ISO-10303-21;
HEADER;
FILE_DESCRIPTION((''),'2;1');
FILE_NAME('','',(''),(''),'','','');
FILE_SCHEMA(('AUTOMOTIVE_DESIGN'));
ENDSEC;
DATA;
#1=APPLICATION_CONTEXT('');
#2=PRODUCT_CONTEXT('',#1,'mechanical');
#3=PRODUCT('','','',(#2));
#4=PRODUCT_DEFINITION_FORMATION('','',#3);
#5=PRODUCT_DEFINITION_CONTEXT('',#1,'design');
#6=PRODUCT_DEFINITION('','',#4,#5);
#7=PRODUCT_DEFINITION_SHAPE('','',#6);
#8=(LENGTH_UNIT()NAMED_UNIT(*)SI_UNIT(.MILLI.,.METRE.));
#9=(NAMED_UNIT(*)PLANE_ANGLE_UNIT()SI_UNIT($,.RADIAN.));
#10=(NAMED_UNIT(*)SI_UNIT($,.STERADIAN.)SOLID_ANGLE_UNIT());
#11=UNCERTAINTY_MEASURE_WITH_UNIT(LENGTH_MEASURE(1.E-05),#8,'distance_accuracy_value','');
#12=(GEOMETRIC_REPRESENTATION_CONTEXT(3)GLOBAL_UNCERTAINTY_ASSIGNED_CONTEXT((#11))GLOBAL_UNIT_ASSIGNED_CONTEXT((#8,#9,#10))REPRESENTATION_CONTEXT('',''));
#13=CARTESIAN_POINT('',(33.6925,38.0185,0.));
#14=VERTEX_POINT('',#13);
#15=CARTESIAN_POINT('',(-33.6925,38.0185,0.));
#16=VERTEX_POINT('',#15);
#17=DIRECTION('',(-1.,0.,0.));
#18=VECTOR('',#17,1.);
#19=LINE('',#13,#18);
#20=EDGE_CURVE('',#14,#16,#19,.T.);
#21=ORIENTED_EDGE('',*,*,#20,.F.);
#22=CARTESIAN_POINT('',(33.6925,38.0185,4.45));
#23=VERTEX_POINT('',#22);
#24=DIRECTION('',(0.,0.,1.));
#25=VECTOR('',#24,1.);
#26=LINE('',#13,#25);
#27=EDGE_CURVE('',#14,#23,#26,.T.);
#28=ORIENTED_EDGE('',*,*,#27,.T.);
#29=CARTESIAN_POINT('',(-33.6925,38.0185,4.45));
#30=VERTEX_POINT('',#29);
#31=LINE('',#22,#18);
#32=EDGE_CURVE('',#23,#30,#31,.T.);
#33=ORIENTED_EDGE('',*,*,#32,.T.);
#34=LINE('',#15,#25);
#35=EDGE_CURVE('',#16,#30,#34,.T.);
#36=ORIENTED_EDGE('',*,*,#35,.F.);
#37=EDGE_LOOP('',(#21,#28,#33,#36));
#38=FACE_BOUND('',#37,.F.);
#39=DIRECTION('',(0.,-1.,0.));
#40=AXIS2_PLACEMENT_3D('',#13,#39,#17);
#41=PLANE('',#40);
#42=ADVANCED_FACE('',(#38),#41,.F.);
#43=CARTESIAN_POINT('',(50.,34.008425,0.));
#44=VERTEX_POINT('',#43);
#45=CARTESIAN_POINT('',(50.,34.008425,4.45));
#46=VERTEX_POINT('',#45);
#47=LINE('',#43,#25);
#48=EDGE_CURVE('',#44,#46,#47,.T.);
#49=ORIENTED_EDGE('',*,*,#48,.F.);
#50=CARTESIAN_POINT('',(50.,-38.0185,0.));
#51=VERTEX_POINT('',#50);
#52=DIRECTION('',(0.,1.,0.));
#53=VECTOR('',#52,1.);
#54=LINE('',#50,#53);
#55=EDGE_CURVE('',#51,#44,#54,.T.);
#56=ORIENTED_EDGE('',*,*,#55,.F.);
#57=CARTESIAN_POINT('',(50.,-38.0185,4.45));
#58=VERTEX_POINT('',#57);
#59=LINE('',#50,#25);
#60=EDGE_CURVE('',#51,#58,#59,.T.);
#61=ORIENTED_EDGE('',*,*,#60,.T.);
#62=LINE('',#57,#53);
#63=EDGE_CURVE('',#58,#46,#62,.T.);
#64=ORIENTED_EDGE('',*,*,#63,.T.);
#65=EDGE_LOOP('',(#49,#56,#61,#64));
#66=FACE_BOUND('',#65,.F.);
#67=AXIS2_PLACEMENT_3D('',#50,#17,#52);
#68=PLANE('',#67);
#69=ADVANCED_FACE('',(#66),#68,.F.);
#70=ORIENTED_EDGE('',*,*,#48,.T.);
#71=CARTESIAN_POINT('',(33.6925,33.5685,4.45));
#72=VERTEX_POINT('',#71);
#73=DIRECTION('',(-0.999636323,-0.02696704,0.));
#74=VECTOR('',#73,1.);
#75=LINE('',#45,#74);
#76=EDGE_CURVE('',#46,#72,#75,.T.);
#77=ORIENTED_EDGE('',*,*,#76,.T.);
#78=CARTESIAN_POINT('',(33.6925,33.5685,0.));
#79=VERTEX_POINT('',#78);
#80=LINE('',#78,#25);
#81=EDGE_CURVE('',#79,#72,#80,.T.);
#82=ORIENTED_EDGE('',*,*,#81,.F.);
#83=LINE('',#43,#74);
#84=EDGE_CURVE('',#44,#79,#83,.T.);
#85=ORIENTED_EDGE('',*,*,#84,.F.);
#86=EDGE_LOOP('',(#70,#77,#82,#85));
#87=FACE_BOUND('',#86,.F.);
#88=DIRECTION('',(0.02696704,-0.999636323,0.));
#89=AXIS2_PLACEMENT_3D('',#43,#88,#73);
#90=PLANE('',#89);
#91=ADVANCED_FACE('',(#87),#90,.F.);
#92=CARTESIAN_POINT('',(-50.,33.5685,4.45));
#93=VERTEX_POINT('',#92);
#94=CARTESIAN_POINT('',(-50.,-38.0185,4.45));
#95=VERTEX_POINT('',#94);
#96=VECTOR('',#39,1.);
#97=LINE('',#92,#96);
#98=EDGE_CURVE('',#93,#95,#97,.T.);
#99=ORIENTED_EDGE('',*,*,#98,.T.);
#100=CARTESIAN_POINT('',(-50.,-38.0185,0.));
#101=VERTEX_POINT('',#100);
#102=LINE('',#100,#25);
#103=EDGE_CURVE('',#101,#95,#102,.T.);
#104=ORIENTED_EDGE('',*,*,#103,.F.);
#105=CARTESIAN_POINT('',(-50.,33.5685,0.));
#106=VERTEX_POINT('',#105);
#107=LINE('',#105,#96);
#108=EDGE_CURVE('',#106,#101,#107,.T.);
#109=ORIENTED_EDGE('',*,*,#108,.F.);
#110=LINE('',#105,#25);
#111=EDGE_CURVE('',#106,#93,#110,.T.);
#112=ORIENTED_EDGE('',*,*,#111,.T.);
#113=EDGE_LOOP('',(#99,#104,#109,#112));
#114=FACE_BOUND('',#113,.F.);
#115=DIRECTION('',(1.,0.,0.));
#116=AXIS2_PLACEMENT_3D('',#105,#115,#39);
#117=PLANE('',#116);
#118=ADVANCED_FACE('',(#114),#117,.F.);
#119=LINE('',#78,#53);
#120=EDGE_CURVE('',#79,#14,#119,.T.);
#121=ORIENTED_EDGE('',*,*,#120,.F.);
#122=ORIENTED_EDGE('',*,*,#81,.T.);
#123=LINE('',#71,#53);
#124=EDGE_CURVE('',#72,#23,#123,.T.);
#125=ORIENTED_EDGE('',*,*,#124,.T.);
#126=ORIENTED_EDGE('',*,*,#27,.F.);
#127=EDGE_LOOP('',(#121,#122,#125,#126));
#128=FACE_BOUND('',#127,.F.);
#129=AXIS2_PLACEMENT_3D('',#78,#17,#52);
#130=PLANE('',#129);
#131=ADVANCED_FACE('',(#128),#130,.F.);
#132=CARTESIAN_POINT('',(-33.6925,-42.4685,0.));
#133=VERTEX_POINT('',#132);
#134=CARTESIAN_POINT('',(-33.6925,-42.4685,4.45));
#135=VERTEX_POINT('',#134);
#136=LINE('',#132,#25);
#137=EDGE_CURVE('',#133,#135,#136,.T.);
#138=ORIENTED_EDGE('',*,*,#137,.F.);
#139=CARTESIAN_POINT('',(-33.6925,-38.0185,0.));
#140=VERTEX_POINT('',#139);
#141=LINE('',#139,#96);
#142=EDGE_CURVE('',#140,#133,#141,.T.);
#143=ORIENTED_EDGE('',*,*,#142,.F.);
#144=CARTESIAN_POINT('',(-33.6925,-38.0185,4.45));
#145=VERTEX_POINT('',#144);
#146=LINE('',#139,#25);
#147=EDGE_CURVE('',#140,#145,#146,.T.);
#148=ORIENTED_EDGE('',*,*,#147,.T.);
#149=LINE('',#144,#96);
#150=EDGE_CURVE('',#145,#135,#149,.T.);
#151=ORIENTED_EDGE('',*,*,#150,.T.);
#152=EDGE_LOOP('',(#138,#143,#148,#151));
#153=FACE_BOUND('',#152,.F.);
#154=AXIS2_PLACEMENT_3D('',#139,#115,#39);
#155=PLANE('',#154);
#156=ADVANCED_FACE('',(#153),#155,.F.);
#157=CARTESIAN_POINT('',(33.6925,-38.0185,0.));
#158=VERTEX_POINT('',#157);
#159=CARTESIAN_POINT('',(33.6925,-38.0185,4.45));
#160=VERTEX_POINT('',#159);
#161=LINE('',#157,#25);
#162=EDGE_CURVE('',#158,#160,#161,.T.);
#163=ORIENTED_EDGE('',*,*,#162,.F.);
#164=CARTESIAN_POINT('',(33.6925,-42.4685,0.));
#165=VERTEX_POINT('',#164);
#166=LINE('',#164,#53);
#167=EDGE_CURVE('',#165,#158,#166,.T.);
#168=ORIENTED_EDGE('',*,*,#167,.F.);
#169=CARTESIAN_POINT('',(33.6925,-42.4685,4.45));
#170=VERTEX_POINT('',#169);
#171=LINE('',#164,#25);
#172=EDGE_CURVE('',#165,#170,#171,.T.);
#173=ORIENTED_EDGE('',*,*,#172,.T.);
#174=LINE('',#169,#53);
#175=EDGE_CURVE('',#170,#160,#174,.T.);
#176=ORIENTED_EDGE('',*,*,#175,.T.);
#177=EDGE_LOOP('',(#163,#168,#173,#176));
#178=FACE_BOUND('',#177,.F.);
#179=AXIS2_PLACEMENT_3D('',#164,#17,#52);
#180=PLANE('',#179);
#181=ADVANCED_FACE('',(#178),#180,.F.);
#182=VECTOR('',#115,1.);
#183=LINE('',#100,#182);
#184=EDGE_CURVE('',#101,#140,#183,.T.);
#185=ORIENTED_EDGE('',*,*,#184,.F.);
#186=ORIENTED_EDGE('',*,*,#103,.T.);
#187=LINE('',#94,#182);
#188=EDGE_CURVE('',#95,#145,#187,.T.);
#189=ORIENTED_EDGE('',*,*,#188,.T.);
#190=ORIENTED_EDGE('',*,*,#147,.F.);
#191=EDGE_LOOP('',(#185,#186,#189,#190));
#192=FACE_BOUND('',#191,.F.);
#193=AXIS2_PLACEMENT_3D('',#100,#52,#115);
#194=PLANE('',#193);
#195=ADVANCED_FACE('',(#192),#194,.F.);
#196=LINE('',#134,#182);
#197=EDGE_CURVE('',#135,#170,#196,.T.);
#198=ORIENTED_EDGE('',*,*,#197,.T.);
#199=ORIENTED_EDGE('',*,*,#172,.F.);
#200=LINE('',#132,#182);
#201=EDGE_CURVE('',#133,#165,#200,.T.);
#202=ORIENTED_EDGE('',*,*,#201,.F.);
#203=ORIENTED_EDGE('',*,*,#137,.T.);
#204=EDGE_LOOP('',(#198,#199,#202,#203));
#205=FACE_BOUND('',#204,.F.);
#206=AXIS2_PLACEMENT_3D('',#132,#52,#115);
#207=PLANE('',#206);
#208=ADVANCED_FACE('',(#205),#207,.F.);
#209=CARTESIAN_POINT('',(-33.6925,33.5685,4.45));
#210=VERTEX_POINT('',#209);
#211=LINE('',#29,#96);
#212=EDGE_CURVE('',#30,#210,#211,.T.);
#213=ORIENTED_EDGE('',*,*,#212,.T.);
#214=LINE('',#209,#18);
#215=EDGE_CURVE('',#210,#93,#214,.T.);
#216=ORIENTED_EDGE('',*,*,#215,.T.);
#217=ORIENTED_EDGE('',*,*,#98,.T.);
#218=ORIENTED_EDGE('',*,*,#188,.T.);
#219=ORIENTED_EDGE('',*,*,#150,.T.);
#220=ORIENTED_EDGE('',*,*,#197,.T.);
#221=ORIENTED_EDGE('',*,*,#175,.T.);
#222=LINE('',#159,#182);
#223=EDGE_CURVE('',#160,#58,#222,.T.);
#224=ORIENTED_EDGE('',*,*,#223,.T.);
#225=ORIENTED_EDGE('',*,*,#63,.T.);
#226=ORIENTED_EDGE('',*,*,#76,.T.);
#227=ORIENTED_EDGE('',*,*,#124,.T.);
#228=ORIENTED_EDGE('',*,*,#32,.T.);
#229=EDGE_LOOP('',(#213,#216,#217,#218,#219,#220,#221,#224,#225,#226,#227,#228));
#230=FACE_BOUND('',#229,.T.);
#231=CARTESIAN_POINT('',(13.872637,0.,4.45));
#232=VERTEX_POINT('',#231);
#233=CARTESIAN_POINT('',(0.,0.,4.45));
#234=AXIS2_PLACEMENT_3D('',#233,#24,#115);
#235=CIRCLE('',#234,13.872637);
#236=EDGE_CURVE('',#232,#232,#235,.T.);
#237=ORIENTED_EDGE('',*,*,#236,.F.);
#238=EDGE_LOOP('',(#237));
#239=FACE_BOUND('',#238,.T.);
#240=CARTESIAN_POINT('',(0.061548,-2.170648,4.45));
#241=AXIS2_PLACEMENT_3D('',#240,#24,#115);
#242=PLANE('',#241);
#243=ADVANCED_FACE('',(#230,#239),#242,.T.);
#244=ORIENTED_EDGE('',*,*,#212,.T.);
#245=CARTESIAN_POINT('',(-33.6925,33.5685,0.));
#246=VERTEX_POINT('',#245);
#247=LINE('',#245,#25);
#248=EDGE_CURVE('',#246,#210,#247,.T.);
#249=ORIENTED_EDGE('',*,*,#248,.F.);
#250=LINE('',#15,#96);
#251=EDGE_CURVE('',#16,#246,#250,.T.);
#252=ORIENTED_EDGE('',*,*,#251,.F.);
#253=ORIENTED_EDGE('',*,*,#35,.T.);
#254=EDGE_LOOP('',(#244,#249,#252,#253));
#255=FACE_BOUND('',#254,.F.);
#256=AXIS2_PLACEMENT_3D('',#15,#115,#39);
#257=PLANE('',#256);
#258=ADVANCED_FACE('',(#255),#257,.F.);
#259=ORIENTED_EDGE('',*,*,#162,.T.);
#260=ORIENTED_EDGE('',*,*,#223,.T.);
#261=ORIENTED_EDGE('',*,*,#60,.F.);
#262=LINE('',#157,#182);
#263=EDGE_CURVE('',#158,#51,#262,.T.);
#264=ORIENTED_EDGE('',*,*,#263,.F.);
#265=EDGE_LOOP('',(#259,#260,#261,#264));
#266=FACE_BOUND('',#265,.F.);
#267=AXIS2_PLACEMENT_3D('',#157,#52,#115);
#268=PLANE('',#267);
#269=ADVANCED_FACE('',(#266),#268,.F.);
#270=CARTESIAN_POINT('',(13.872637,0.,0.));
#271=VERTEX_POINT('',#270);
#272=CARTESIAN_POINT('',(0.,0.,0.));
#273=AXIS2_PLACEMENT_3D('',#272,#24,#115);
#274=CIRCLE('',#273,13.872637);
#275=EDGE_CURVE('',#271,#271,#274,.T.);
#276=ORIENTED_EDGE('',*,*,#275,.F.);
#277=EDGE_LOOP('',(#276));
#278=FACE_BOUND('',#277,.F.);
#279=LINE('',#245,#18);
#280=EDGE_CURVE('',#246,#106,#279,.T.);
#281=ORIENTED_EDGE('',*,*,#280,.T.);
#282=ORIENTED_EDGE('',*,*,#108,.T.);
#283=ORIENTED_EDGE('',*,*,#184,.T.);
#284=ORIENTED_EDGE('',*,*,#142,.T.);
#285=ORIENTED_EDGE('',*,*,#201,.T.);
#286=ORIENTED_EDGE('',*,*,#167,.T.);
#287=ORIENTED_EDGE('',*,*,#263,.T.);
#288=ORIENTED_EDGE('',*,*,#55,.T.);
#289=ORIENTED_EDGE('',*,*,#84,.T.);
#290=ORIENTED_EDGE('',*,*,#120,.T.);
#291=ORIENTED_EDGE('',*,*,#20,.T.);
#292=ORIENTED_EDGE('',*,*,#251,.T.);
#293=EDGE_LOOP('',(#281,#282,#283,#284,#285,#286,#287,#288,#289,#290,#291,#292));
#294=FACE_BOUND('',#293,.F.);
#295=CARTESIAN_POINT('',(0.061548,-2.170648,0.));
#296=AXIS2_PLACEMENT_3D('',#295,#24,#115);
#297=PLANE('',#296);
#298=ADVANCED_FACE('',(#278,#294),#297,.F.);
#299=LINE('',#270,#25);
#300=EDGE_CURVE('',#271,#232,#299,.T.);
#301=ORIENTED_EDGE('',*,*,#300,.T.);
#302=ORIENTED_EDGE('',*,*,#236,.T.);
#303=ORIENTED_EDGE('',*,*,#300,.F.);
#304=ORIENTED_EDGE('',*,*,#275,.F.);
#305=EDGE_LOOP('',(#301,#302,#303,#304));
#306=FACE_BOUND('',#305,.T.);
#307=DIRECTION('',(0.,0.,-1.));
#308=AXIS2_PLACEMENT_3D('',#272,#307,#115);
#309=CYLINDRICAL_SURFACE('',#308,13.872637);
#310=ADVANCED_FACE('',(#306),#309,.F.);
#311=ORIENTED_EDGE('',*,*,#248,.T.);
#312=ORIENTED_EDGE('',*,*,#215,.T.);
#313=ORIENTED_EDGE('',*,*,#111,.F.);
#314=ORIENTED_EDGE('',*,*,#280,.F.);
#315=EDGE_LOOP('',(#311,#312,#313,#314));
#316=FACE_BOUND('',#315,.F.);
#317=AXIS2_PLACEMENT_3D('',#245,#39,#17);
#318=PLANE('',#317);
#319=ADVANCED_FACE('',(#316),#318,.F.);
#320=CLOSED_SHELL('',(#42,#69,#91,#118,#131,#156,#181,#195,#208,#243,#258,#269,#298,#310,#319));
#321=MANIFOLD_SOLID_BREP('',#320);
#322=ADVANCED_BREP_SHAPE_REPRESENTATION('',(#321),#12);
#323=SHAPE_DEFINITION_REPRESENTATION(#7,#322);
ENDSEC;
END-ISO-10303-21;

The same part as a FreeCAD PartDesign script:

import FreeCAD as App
import Part
import Sketcher
from FreeCAD import Vector

doc = App.newDocument("Part")
body = doc.addObject("PartDesign::Body", "Body")

# Sketch on XY plane
sketch1 = body.newObject("Sketcher::SketchObject", "Sketch")
sketch1.AttachmentSupport = (doc.getObject("XY_Plane"), [""])
sketch1.MapMode = "FlatFace"
sketch1.addGeometry(Part.LineSegment(Vector(50, 34.008425, 0), Vector(33.6925, 33.5685, 0)), False)
sketch1.addGeometry(Part.LineSegment(Vector(33.6925, 33.5685, 0), Vector(33.6925, 38.0185, 0)), False)
sketch1.addGeometry(Part.LineSegment(Vector(33.6925, 38.0185, 0), Vector(-33.6925, 38.0185, 0)), False)
sketch1.addGeometry(Part.LineSegment(Vector(-33.6925, 38.0185, 0), Vector(-33.6925, 33.5685, 0)), False)
sketch1.addGeometry(Part.LineSegment(Vector(-33.6925, 33.5685, 0), Vector(-50, 33.5685, 0)), False)
sketch1.addGeometry(Part.LineSegment(Vector(-50, 33.5685, 0), Vector(-50, -38.0185, 0)), False)
sketch1.addGeometry(Part.LineSegment(Vector(-50, -38.0185, 0), Vector(-33.6925, -38.0185, 0)), False)
sketch1.addGeometry(Part.LineSegment(Vector(-33.6925, -38.0185, 0), Vector(-33.6925, -42.4685, 0)), False)
sketch1.addGeometry(Part.LineSegment(Vector(-33.6925, -42.4685, 0), Vector(33.6925, -42.4685, 0)), False)
sketch1.addGeometry(Part.LineSegment(Vector(33.6925, -42.4685, 0), Vector(33.6925, -38.0185, 0)), False)
sketch1.addGeometry(Part.LineSegment(Vector(33.6925, -38.0185, 0), Vector(50, -38.0185, 0)), False)
sketch1.addGeometry(Part.LineSegment(Vector(50, -38.0185, 0), Vector(50, 34.008425, 0)), False)
sketch1.addGeometry(Part.Circle(Vector(0, 0, 0), Vector(0, 0, 1), 13.872637), False)
sketch1.addConstraint(Sketcher.Constraint("Coincident", 0, 2, 1, 1))
sketch1.addConstraint(Sketcher.Constraint("Coincident", 1, 2, 2, 1))
sketch1.addConstraint(Sketcher.Constraint("Coincident", 2, 2, 3, 1))
sketch1.addConstraint(Sketcher.Constraint("Coincident", 3, 2, 4, 1))
sketch1.addConstraint(Sketcher.Constraint("Coincident", 4, 2, 5, 1))
sketch1.addConstraint(Sketcher.Constraint("Coincident", 5, 2, 6, 1))
sketch1.addConstraint(Sketcher.Constraint("Coincident", 6, 2, 7, 1))
sketch1.addConstraint(Sketcher.Constraint("Coincident", 7, 2, 8, 1))
sketch1.addConstraint(Sketcher.Constraint("Coincident", 8, 2, 9, 1))
sketch1.addConstraint(Sketcher.Constraint("Coincident", 9, 2, 10, 1))
sketch1.addConstraint(Sketcher.Constraint("Coincident", 10, 2, 11, 1))
sketch1.addConstraint(Sketcher.Constraint("Coincident", 11, 2, 0, 1))
sketch1.addConstraint(Sketcher.Constraint("Vertical", 1))
sketch1.addConstraint(Sketcher.Constraint("Horizontal", 2))
sketch1.addConstraint(Sketcher.Constraint("Vertical", 3))
sketch1.addConstraint(Sketcher.Constraint("Horizontal", 4))
sketch1.addConstraint(Sketcher.Constraint("Vertical", 5))
sketch1.addConstraint(Sketcher.Constraint("Horizontal", 6))
sketch1.addConstraint(Sketcher.Constraint("Vertical", 7))
sketch1.addConstraint(Sketcher.Constraint("Horizontal", 8))
sketch1.addConstraint(Sketcher.Constraint("Vertical", 9))
sketch1.addConstraint(Sketcher.Constraint("Horizontal", 10))
sketch1.addConstraint(Sketcher.Constraint("Vertical", 11))
sketch1.addConstraint(Sketcher.Constraint("Coincident", 12, 3, -1, 1))
sketch1.addConstraint(Sketcher.Constraint("Symmetric", 1, 2, 6, 2, -1, 1))
sketch1.addConstraint(Sketcher.Constraint("Symmetric", 2, 2, 9, 2, -1, 1))
sketch1.addConstraint(Sketcher.Constraint("Symmetric", 0, 2, 3, 2, -2))
sketch1.addConstraint(Sketcher.Constraint("Equal", 6, 10))
sketch1.addConstraint(Sketcher.Constraint("Equal", 3, 7))
sketch1.addConstraint(Sketcher.Constraint("DistanceX", 4, 2, -1, 1, 50.0))
sketch1.addConstraint(Sketcher.Constraint("DistanceY", 1, 1, 1, 2, 4.45))
sketch1.addConstraint(Sketcher.Constraint("DistanceX", 2, 2, 2, 1, 67.385))
sketch1.addConstraint(Sketcher.Constraint("DistanceY", 5, 2, 5, 1, 71.587))
sketch1.addConstraint(Sketcher.Constraint("Diameter", 12, 27.745274))
sketch1.addConstraint(Sketcher.Constraint("DistanceY", 11, 1, 11, 2, 72.026925))
pad1 = body.newObject("PartDesign::Pad", "Pad")
pad1.Profile = sketch1
pad1.Length = 4.45

doc.recompute()
